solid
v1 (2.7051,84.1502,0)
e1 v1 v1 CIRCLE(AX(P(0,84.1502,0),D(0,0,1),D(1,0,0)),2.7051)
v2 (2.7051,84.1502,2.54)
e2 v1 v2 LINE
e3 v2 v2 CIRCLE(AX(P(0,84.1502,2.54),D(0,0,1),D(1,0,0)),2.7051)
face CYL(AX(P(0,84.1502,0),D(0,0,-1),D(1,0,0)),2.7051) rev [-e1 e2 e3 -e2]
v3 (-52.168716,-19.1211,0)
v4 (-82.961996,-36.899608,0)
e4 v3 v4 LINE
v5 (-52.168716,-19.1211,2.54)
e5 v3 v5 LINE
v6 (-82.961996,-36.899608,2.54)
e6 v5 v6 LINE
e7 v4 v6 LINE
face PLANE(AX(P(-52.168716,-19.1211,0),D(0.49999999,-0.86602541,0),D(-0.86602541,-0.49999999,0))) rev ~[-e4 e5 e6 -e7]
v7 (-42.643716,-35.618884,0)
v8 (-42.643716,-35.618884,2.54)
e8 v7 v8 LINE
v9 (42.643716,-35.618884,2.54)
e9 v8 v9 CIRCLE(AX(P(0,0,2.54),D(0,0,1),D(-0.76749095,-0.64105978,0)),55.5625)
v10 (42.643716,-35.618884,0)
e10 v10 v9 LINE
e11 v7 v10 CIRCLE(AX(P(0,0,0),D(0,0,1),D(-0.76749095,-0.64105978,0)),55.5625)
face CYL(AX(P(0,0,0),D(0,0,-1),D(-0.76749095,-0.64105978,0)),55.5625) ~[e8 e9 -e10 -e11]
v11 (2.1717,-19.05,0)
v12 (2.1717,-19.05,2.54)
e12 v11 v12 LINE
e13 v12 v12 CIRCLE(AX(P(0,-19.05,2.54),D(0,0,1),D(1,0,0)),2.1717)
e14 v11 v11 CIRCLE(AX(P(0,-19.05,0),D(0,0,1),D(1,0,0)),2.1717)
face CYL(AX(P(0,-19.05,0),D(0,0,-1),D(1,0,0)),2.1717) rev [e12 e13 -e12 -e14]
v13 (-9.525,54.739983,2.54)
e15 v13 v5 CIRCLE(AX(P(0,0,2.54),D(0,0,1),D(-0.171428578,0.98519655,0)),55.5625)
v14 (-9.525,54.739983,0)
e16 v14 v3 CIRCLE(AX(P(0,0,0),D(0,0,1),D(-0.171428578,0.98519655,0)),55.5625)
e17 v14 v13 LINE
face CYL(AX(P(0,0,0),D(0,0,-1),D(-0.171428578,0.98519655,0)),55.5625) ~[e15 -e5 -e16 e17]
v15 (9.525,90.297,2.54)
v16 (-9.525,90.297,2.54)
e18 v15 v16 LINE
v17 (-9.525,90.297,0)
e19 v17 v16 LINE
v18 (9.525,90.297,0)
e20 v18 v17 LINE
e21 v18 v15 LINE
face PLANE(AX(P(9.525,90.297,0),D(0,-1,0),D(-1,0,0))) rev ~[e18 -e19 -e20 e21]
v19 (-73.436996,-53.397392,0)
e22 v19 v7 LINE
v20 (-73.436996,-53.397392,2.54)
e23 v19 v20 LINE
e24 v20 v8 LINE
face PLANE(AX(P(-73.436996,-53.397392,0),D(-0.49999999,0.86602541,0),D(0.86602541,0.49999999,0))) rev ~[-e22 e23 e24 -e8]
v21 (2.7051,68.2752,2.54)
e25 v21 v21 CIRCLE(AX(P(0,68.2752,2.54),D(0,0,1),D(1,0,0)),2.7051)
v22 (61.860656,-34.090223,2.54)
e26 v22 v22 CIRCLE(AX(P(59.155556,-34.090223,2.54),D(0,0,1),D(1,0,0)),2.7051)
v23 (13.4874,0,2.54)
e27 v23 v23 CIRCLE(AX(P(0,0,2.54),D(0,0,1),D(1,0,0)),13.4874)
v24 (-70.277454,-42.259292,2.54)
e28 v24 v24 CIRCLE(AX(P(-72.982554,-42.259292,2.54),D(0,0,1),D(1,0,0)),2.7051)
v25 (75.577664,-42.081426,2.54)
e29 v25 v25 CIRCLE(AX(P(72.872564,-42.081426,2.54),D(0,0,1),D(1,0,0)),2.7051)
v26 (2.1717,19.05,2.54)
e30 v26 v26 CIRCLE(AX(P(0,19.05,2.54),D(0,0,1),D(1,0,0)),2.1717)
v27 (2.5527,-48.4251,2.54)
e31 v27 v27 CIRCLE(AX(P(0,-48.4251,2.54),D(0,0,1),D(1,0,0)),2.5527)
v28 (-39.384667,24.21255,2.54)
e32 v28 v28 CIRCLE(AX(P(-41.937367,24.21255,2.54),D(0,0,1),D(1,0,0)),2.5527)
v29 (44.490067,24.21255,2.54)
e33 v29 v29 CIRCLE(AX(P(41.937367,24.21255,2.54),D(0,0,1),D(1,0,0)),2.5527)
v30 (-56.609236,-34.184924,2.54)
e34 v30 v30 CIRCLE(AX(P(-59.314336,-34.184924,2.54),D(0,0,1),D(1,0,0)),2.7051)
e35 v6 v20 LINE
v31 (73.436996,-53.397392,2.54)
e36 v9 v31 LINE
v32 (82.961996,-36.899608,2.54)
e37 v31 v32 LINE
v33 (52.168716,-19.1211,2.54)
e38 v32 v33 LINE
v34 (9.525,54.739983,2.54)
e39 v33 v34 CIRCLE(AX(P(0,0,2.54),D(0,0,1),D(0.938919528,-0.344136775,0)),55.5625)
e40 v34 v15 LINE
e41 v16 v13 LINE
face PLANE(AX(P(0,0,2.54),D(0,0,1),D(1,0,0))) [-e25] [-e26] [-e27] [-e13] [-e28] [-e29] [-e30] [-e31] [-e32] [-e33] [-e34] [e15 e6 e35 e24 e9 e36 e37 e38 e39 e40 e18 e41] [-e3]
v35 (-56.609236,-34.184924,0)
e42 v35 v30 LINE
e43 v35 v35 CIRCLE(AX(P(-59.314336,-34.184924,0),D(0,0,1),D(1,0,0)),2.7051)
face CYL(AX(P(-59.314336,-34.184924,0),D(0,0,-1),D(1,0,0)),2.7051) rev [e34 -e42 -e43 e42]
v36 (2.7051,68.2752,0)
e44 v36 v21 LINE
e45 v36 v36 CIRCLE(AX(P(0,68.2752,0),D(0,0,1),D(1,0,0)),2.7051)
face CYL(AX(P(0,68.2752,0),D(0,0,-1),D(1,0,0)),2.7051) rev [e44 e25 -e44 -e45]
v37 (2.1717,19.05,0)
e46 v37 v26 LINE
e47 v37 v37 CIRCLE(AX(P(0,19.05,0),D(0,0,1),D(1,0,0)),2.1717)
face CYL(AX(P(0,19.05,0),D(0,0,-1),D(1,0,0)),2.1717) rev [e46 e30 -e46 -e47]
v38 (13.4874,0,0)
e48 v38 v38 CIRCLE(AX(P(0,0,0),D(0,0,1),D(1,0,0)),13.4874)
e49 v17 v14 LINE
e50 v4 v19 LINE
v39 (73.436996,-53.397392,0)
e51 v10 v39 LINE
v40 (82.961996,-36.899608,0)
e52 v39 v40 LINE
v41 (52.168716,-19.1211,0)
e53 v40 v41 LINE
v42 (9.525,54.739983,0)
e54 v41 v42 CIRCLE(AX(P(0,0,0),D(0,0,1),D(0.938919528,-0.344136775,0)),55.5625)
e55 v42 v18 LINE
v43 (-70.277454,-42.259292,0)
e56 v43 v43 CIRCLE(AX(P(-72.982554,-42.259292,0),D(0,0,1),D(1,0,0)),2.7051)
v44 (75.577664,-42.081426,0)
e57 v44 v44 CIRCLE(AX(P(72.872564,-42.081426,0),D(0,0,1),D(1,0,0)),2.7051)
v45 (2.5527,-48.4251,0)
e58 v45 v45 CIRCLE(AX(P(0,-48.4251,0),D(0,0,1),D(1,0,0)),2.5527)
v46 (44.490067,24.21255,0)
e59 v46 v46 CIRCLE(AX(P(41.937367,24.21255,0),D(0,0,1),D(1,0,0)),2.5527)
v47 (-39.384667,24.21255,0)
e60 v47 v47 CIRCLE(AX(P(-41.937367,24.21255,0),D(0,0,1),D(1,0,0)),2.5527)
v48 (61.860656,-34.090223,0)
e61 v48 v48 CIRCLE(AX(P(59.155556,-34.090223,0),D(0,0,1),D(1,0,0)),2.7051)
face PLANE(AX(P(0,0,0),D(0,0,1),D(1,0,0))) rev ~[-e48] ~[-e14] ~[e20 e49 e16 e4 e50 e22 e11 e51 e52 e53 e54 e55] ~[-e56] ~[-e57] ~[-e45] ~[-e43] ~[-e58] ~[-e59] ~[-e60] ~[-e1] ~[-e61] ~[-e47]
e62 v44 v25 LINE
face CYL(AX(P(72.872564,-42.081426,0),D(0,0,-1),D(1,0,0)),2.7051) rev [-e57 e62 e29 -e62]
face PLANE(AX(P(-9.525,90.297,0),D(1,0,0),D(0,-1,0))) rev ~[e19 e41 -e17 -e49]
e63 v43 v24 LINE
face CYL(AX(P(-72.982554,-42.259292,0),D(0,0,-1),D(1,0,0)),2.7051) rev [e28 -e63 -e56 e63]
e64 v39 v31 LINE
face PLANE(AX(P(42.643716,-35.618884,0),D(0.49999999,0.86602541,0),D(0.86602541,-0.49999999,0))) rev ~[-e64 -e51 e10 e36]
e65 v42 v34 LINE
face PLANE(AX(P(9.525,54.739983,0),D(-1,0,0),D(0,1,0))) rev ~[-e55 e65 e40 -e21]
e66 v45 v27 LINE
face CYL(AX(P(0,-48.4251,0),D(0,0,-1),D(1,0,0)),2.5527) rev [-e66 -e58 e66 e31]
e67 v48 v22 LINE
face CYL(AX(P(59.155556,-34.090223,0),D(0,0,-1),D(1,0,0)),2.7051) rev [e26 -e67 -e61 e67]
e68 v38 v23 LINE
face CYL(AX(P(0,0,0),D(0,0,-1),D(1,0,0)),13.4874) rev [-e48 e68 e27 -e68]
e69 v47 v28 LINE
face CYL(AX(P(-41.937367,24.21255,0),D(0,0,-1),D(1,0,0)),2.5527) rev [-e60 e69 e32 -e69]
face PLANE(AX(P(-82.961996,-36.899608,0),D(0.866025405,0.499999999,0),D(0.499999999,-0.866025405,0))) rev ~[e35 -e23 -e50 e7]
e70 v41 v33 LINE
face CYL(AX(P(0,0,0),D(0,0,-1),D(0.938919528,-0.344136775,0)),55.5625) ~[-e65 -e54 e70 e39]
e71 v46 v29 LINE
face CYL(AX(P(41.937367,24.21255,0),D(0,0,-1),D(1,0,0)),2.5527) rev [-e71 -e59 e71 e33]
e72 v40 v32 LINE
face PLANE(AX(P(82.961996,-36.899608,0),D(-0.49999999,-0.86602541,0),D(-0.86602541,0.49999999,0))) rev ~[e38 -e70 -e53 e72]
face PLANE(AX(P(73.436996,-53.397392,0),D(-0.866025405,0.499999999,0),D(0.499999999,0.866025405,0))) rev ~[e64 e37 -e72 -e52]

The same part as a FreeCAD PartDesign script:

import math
import FreeCAD as App
import Part
import Sketcher

V = App.Vector
Q = App.Units.Quantity

doc = App.newDocument("Part")
body = doc.addObject("PartDesign::Body", "Body")

sketch1 = body.newObject("Sketcher::SketchObject", "Sketch")
sketch1.AttachmentSupport = (doc.getObject("XY_Plane"), [""])
sketch1.MapMode = "FlatFace"
sketch1.addGeometry(Part.LineSegment(V(-10, 90, 0), V(-10, 55, 0)), False)
sketch1.addGeometry(Part.ArcOfCircle(Part.Circle(V(0, 0, 0), V(0, 0, 1), 56), math.radians(100), math.radians(200)), False)
sketch1.addGeometry(Part.LineSegment(V(-52, -19, 0), V(-83, -37, 0)), False)
sketch1.addGeometry(Part.LineSegment(V(-83, -37, 0), V(-73, -53, 0)), False)
sketch1.addGeometry(Part.LineSegment(V(-73, -53, 0), V(-43, -36, 0)), False)
sketch1.addGeometry(Part.ArcOfCircle(Part.Circle(V(0, 0, 0), V(0, 0, 1), 56), math.radians(-140), math.radians(-40)), False)
sketch1.addGeometry(Part.LineSegment(V(43, -36, 0), V(73, -53, 0)), False)
sketch1.addGeometry(Part.LineSegment(V(73, -53, 0), V(83, -37, 0)), False)
sketch1.addGeometry(Part.LineSegment(V(83, -37, 0), V(52, -19, 0)), False)
sketch1.addGeometry(Part.ArcOfCircle(Part.Circle(V(0, 0, 0), V(0, 0, 1), 56), math.radians(-20), math.radians(80)), False)
sketch1.addGeometry(Part.LineSegment(V(10, 55, 0), V(10, 90, 0)), False)
sketch1.addGeometry(Part.LineSegment(V(10, 90, 0), V(-10, 90, 0)), False)
sketch1.addGeometry(Part.Circle(V(0, 0, 0), V(0, 0, 1), 13), False)
sketch1.addConstraint(Sketcher.Constraint("Coincident", 0, 2, 1, 1))
sketch1.addConstraint(Sketcher.Constraint("Coincident", 1, 2, 2, 1))
sketch1.addConstraint(Sketcher.Constraint("Coincident", 2, 2, 3, 1))
sketch1.addConstraint(Sketcher.Constraint("Coincident", 3, 2, 4, 1))
sketch1.addConstraint(Sketcher.Constraint("Coincident", 4, 2, 5, 1))
sketch1.addConstraint(Sketcher.Constraint("Coincident", 5, 2, 6, 1))
sketch1.addConstraint(Sketcher.Constraint("Coincident", 6, 2, 7, 1))
sketch1.addConstraint(Sketcher.Constraint("Coincident", 7, 2, 8, 1))
sketch1.addConstraint(Sketcher.Constraint("Coincident", 8, 2, 9, 1))
sketch1.addConstraint(Sketcher.Constraint("Coincident", 9, 2, 10, 1))
sketch1.addConstraint(Sketcher.Constraint("Coincident", 10, 2, 11, 1))
sketch1.addConstraint(Sketcher.Constraint("Coincident", 11, 2, 0, 1))
sketch1.addConstraint(Sketcher.Constraint("Vertical", 0))
sketch1.addConstraint(Sketcher.Constraint("Vertical", 10))
sketch1.addConstraint(Sketcher.Constraint("Horizontal", 11))
sketch1.addConstraint(Sketcher.Constraint("Coincident", 1, 3, -1, 1))
sketch1.addConstraint(Sketcher.Constraint("Coincident", 5, 3, -1, 1))
sketch1.addConstraint(Sketcher.Constraint("Coincident", 9, 3, -1, 1))
sketch1.addConstraint(Sketcher.Constraint("Coincident", 12, 3, -1, 1))
sketch1.addConstraint(Sketcher.Constraint("Equal", 1, 5))
sketch1.addConstraint(Sketcher.Constraint("Equal", 5, 9))
sketch1.addConstraint(Sketcher.Constraint("Symmetric", 3, 2, 6, 2, -2))
sketch1.addConstraint(Sketcher.Constraint("Symmetric", 2, 2, 7, 2, -2))
sketch1.addConstraint(Sketcher.Constraint("Perpendicular", 2, 3))
sketch1.addConstraint(Sketcher.Constraint("Perpendicular", 3, 4))
sketch1.addConstraint(Sketcher.Constraint("Perpendicular", 6, 7))
sketch1.addConstraint(Sketcher.Constraint("Perpendicular", 7, 8))
sketch1.addConstraint(Sketcher.Constraint("Horizontal", 0, 2, 9, 2))
sketch1.addConstraint(Sketcher.Constraint("Equal", 2, 4))
sketch1.addConstraint(Sketcher.Constraint("Diameter", 12, Q("1.062 in")))
sketch1.addConstraint(Sketcher.Constraint("Angle", 2, Q("-150.000001 deg")))
sketch1.addConstraint(Sketcher.Constraint("Radius", 1, Q("2.1875 in")))
sketch1.addConstraint(Sketcher.Constraint("DistanceX", 11, 2, 11, 1, Q("0.75 in")))
sketch1.addConstraint(Sketcher.Constraint("Distance", 3, Q("0.75 in")))
sketch1.addConstraint(Sketcher.Constraint("DistanceY", -1, 1, 10, 2, Q("3.555 in")))
sketch1.addConstraint(Sketcher.Constraint("DistanceX", 2, 2, 1, 2, Q("30.79328 mm")))
pad1 = body.newObject("PartDesign::Pad", "Pad")
pad1.Profile = sketch1
pad1.Length = Q("0.1 in")

sketch2 = body.newObject("Sketcher::SketchObject", "Sketch001")
sketch2.AttachmentSupport = (doc.getObject("XY_Plane"), [""])
sketch2.MapMode = "FlatFace"
sketch2.addGeometry(Part.Circle(V(0, 84.2, 0), V(0, 0, 1), 2.7), False)
sketch2.addGeometry(Part.Circle(V(0, 68.3, 0), V(0, 0, 1), 2.7), False)
sketch2.addGeometry(Part.Circle(V(72.9, -42.1, 0), V(0, 0, 1), 2.7), False)
sketch2.addGeometry(Part.Circle(V(59.2, -34.1, 0), V(0, 0, 1), 2.7), False)
sketch2.addGeometry(Part.Circle(V(-73, -42.3, 0), V(0, 0, 1), 2.7), False)
sketch2.addGeometry(Part.Circle(V(-59.3, -34.2, 0), V(0, 0, 1), 2.7), False)
sketch2.addGeometry(Part.Circle(V(-41.9, 24.2, 0), V(0, 0, 1), 2.6), False)
sketch2.addGeometry(Part.Circle(V(41.9, 24.2, 0), V(0, 0, 1), 2.6), False)
sketch2.addGeometry(Part.Circle(V(0, -48.4, 0), V(0, 0, 1), 2.6), False)
sketch2.addGeometry(Part.Circle(V(0, 19.1, 0), V(0, 0, 1), 2.2), False)
sketch2.addGeometry(Part.Circle(V(0, -19.1, 0), V(0, 0, 1), 2.2), False)
sketch2.addConstraint(Sketcher.Constraint("Equal", 0, 1))
sketch2.addConstraint(Sketcher.Constraint("Equal", 1, 2))
sketch2.addConstraint(Sketcher.Constraint("Equal", 2, 3))
sketch2.addConstraint(Sketcher.Constraint("Equal", 3, 4))
sketch2.addConstraint(Sketcher.Constraint("Equal", 4, 5))
sketch2.addConstraint(Sketcher.Constraint("Equal", 6, 7))
sketch2.addConstraint(Sketcher.Constraint("Equal", 7, 8))
sketch2.addConstraint(Sketcher.Constraint("Equal", 9, 10))
sketch2.addConstraint(Sketcher.Constraint("Symmetric", 9, 3, 10, 3, -1, 1))
sketch2.addConstraint(Sketcher.Constraint("Symmetric", 6, 3, 7, 3, -2))
sketch2.addConstraint(Sketcher.Constraint("PointOnObject", 0, 3, -2))
sketch2.addConstraint(Sketcher.Constraint("PointOnObject", 1, 3, -2))
sketch2.addConstraint(Sketcher.Constraint("PointOnObject", 8, 3, -2))
sketch2.addConstraint(Sketcher.Constraint("PointOnObject", 9, 3, -2))
sketch2.addConstraint(Sketcher.Constraint("Diameter", 0, Q("0.213 in")))
sketch2.addConstraint(Sketcher.Constraint("Diameter", 6, Q("0.201 in")))
sketch2.addConstraint(Sketcher.Constraint("Diameter", 9, Q("0.171 in")))
sketch2.addConstraint(Sketcher.Constraint("DistanceY", 10, 3, 9, 3, Q("1.5 in")))
sketch2.addConstraint(Sketcher.Constraint("DistanceY", -1, 1, 0, 3, Q("3.313 in")))
sketch2.addConstraint(Sketcher.Constraint("DistanceY", -1, 1, 1, 3, Q("2.688 in")))
sketch2.addConstraint(Sketcher.Constraint("DistanceY", 8, 3, -1, 1, Q("1.9065 in")))
sketch2.addConstraint(Sketcher.Constraint("DistanceY", 5, 3, 3, 3, Q("0.094701 mm")))
sketch2.addConstraint(Sketcher.Constraint("DistanceX", 5, 3, 2, 3, Q("132.1869 mm")))
sketch2.addConstraint(Sketcher.Constraint("DistanceY", 2, 3, 5, 3, Q("7.896502 mm")))
sketch2.addConstraint(Sketcher.Constraint("DistanceY", -1, 1, 6, 3, Q("24.21255 mm")))
sketch2.addConstraint(Sketcher.Constraint("DistanceX", 4, 3, 3, 3, Q("132.13811 mm")))
sketch2.addConstraint(Sketcher.Constraint("DistanceY", 4, 3, 3, 3, Q("8.169069 mm")))
sketch2.addConstraint(Sketcher.Constraint("DistanceY", 4, 3, 1, 3, Q("110.534492 mm")))
sketch2.addConstraint(Sketcher.Constraint("DistanceX", 4, 3, 2, 3, Q("145.855118 mm")))
sketch2.addConstraint(Sketcher.Constraint("DistanceX", 5, 3, 6, 3, Q("17.376969 mm")))
sketch2.addConstraint(Sketcher.Constraint("DistanceX", 7, 3, 3, 3, Q("17.218189 mm")))
pocket1 = body.newObject("PartDesign::Pocket", "Pocket")
pocket1.Profile = sketch2
pocket1.Length = Q("0.1 in")
pocket1.Reversed = True

doc.recompute()
